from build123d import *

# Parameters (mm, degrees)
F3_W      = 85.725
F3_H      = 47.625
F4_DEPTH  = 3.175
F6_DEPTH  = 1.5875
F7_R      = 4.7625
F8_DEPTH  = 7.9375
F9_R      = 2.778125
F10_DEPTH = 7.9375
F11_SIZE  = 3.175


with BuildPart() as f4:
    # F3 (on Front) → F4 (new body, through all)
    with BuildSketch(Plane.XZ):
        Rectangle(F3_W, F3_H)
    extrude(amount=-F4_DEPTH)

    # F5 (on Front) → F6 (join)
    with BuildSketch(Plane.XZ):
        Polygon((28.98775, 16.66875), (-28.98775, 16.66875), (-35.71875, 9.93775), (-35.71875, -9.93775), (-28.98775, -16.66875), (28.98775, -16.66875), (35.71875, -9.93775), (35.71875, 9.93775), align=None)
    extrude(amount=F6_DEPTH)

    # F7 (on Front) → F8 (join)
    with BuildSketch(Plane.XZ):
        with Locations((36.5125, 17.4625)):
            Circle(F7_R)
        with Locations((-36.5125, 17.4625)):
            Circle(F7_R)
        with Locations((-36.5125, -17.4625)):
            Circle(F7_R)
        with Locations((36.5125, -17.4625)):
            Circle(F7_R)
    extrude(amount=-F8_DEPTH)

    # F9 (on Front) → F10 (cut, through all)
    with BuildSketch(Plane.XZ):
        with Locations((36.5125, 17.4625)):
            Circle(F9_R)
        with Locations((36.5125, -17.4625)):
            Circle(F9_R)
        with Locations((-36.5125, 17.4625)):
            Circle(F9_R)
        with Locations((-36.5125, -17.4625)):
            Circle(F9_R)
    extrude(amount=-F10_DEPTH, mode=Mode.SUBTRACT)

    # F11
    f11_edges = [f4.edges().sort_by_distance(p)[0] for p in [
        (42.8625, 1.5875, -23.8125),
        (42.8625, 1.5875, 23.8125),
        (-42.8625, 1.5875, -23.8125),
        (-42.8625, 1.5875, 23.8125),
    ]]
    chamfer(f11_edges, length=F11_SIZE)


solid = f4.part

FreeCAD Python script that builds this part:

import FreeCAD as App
import Part
import Sketcher
Q = App.Units.Quantity


def edges_at(feature, points):
    """Names of the edges that pass closest to the given points."""
    edges = feature.Shape.Edges
    near = lambda p: min(range(len(edges)), key=lambda i: edges[i].distToShape(Part.Vertex(*p))[0])
    return sorted({f"Edge{near(p) + 1}" for p in points})


def add_polygon(sketch, points):
    """Adds a closed chain of lines whose ends are joined by coincident constraints."""
    first, n = sketch.GeometryCount, len(points)
    for a, b in zip(points, points[1:] + points[:1]):
        sketch.addGeometry(Part.LineSegment(App.Vector(*a, 0), App.Vector(*b, 0)), False)
    for i in range(n):
        sketch.addConstraint(Sketcher.Constraint("Coincident", first + i, 2, first + (i + 1) % n, 1))

doc = App.newDocument("Part")
body = doc.addObject("PartDesign::Body", "Body")

sketch1 = body.newObject("Sketcher::SketchObject", "Sketch")
sketch1.AttachmentSupport = (doc.getObject("XZ_Plane"), [""])
sketch1.MapMode = "FlatFace"
add_polygon(sketch1, [(-43, 24), (-43, -24), (43, -24), (43, 24)])
sketch1.addConstraint([
    Sketcher.Constraint("Vertical", 0),
    Sketcher.Constraint("Horizontal", 1),
    Sketcher.Constraint("Vertical", 2),
    Sketcher.Constraint("Horizontal", 3),
    Sketcher.Constraint("Symmetric", 0, 2, 2, 2, -1, 1),
    Sketcher.Constraint("DistanceX", 1, 1, 1, 2, Q("3.375 in")),
    Sketcher.Constraint("DistanceY", 0, 2, 0, 1, Q("1.875 in")),
])
pad1 = body.newObject("PartDesign::Pad", "Pad")
pad1.Profile = sketch1
pad1.Length = Q("0.125 in")
pad1.Reversed = True

sketch2 = body.newObject("Sketcher::SketchObject", "Sketch001")
sketch2.AttachmentSupport = (doc.getObject("XZ_Plane"), [""])
sketch2.MapMode = "FlatFace"
add_polygon(sketch2, [(29, 17), (-29, 17), (-36, 10), (-36, -10), (-29, -17), (29, -17), (36, -10), (36, 10)])
sketch2.addConstraint([
    Sketcher.Constraint("Horizontal", 0),
    Sketcher.Constraint("Vertical", 2),
    Sketcher.Constraint("Horizontal", 4),
    Sketcher.Constraint("Vertical", 6),
    Sketcher.Constraint("Symmetric", 0, 2, 4, 2, -1, 1),
    Sketcher.Constraint("Symmetric", 1, 2, 5, 2, -1, 1),
    Sketcher.Constraint("Perpendicular", 1, 3),
    Sketcher.Constraint("Perpendicular", 5, 7),
    Sketcher.Constraint("Horizontal", 2, 2, 5, 2),
    Sketcher.Constraint("Horizontal", 1, 2, 6, 2),
    Sketcher.Constraint("Vertical", 0, 2, 3, 2),
    Sketcher.Constraint("DistanceX", 0, 2, 0, 1, Q("2.2825 in")),
    Sketcher.Constraint("DistanceY", 2, 2, 2, 1, Q("0.7825 in")),
    Sketcher.Constraint("DistanceY", -1, 1, 0, 2, Q("0.65625 in")),
])
pad2 = body.newObject("PartDesign::Pad", "Pad001")
pad2.Profile = sketch2
pad2.Length = Q("0.0625 in")

sketch3 = body.newObject("Sketcher::SketchObject", "Sketch002")
sketch3.AttachmentSupport = (doc.getObject("XZ_Plane"), [""])
sketch3.MapMode = "FlatFace"
sketch3.addGeometry([
    Part.Circle(App.Vector(36.5, 17.5, 0), App.Vector(0, 0, 1), 4.8),
    Part.Circle(App.Vector(-36.5, 17.5, 0), App.Vector(0, 0, 1), 4.8),
    Part.Circle(App.Vector(-36.5, -17.5, 0), App.Vector(0, 0, 1), 4.8),
    Part.Circle(App.Vector(36.5, -17.5, 0), App.Vector(0, 0, 1), 4.8),
], False)
sketch3.addConstraint([
    Sketcher.Constraint("Equal", 0, 1),
    Sketcher.Constraint("Equal", 1, 2),
    Sketcher.Constraint("Equal", 2, 3),
    Sketcher.Constraint("Symmetric", 0, 3, 2, 3, -1, 1),
    Sketcher.Constraint("Symmetric", 1, 3, 3, 3, -1, 1),
    Sketcher.Constraint("Symmetric", 0, 3, 1, 3, -2),
    Sketcher.Constraint("Diameter", 0, Q("0.375 in")),
    Sketcher.Constraint("DistanceX", -1, 1, 0, 3, Q("1.4375 in")),
    Sketcher.Constraint("DistanceY", -1, 1, 0, 3, Q("0.6875 in")),
])
pad3 = body.newObject("PartDesign::Pad", "Pad002")
pad3.Profile = sketch3
pad3.Length = Q("0.3125 in")
pad3.Reversed = True

sketch4 = body.newObject("Sketcher::SketchObject", "Sketch003")
sketch4.AttachmentSupport = (doc.getObject("XZ_Plane"), [""])
sketch4.MapMode = "FlatFace"
sketch4.addGeometry([
    Part.Circle(App.Vector(36.5, 17.5, 0), App.Vector(0, 0, 1), 2.8),
    Part.Circle(App.Vector(36.5, -17.5, 0), App.Vector(0, 0, 1), 2.8),
    Part.Circle(App.Vector(-36.5, 17.5, 0), App.Vector(0, 0, 1), 2.8),
    Part.Circle(App.Vector(-36.5, -17.5, 0), App.Vector(0, 0, 1), 2.8),
], False)
sketch4.addConstraint([
    Sketcher.Constraint("Equal", 0, 1),
    Sketcher.Constraint("Equal", 1, 2),
    Sketcher.Constraint("Equal", 2, 3),
    Sketcher.Constraint("Symmetric", 1, 3, 2, 3, -1, 1),
    Sketcher.Constraint("Symmetric", 0, 3, 3, 3, -1, 1),
    Sketcher.Constraint("Symmetric", 0, 3, 2, 3, -2),
    Sketcher.Constraint("Diameter", 0, Q("0.21875 in")),
    Sketcher.Constraint("DistanceX", -1, 1, 0, 3, Q("1.4375 in")),
    Sketcher.Constraint("DistanceY", -1, 1, 0, 3, Q("0.6875 in")),
])
pocket1 = body.newObject("PartDesign::Pocket", "Pocket")
pocket1.Profile = sketch4
pocket1.Type = "ThroughAll"
doc.recompute()

chamfer = body.newObject("PartDesign::Chamfer", "Chamfer")
chamfer.Base = (pocket1, edges_at(pocket1, [
    (42.862, 1.587, -23.812),
    (42.862, 1.587, 23.812),
    (-42.862, 1.587, -23.812),
    (-42.862, 1.587, 23.812),
]))
chamfer.Size = Q("0.125 in")

doc.recompute()
